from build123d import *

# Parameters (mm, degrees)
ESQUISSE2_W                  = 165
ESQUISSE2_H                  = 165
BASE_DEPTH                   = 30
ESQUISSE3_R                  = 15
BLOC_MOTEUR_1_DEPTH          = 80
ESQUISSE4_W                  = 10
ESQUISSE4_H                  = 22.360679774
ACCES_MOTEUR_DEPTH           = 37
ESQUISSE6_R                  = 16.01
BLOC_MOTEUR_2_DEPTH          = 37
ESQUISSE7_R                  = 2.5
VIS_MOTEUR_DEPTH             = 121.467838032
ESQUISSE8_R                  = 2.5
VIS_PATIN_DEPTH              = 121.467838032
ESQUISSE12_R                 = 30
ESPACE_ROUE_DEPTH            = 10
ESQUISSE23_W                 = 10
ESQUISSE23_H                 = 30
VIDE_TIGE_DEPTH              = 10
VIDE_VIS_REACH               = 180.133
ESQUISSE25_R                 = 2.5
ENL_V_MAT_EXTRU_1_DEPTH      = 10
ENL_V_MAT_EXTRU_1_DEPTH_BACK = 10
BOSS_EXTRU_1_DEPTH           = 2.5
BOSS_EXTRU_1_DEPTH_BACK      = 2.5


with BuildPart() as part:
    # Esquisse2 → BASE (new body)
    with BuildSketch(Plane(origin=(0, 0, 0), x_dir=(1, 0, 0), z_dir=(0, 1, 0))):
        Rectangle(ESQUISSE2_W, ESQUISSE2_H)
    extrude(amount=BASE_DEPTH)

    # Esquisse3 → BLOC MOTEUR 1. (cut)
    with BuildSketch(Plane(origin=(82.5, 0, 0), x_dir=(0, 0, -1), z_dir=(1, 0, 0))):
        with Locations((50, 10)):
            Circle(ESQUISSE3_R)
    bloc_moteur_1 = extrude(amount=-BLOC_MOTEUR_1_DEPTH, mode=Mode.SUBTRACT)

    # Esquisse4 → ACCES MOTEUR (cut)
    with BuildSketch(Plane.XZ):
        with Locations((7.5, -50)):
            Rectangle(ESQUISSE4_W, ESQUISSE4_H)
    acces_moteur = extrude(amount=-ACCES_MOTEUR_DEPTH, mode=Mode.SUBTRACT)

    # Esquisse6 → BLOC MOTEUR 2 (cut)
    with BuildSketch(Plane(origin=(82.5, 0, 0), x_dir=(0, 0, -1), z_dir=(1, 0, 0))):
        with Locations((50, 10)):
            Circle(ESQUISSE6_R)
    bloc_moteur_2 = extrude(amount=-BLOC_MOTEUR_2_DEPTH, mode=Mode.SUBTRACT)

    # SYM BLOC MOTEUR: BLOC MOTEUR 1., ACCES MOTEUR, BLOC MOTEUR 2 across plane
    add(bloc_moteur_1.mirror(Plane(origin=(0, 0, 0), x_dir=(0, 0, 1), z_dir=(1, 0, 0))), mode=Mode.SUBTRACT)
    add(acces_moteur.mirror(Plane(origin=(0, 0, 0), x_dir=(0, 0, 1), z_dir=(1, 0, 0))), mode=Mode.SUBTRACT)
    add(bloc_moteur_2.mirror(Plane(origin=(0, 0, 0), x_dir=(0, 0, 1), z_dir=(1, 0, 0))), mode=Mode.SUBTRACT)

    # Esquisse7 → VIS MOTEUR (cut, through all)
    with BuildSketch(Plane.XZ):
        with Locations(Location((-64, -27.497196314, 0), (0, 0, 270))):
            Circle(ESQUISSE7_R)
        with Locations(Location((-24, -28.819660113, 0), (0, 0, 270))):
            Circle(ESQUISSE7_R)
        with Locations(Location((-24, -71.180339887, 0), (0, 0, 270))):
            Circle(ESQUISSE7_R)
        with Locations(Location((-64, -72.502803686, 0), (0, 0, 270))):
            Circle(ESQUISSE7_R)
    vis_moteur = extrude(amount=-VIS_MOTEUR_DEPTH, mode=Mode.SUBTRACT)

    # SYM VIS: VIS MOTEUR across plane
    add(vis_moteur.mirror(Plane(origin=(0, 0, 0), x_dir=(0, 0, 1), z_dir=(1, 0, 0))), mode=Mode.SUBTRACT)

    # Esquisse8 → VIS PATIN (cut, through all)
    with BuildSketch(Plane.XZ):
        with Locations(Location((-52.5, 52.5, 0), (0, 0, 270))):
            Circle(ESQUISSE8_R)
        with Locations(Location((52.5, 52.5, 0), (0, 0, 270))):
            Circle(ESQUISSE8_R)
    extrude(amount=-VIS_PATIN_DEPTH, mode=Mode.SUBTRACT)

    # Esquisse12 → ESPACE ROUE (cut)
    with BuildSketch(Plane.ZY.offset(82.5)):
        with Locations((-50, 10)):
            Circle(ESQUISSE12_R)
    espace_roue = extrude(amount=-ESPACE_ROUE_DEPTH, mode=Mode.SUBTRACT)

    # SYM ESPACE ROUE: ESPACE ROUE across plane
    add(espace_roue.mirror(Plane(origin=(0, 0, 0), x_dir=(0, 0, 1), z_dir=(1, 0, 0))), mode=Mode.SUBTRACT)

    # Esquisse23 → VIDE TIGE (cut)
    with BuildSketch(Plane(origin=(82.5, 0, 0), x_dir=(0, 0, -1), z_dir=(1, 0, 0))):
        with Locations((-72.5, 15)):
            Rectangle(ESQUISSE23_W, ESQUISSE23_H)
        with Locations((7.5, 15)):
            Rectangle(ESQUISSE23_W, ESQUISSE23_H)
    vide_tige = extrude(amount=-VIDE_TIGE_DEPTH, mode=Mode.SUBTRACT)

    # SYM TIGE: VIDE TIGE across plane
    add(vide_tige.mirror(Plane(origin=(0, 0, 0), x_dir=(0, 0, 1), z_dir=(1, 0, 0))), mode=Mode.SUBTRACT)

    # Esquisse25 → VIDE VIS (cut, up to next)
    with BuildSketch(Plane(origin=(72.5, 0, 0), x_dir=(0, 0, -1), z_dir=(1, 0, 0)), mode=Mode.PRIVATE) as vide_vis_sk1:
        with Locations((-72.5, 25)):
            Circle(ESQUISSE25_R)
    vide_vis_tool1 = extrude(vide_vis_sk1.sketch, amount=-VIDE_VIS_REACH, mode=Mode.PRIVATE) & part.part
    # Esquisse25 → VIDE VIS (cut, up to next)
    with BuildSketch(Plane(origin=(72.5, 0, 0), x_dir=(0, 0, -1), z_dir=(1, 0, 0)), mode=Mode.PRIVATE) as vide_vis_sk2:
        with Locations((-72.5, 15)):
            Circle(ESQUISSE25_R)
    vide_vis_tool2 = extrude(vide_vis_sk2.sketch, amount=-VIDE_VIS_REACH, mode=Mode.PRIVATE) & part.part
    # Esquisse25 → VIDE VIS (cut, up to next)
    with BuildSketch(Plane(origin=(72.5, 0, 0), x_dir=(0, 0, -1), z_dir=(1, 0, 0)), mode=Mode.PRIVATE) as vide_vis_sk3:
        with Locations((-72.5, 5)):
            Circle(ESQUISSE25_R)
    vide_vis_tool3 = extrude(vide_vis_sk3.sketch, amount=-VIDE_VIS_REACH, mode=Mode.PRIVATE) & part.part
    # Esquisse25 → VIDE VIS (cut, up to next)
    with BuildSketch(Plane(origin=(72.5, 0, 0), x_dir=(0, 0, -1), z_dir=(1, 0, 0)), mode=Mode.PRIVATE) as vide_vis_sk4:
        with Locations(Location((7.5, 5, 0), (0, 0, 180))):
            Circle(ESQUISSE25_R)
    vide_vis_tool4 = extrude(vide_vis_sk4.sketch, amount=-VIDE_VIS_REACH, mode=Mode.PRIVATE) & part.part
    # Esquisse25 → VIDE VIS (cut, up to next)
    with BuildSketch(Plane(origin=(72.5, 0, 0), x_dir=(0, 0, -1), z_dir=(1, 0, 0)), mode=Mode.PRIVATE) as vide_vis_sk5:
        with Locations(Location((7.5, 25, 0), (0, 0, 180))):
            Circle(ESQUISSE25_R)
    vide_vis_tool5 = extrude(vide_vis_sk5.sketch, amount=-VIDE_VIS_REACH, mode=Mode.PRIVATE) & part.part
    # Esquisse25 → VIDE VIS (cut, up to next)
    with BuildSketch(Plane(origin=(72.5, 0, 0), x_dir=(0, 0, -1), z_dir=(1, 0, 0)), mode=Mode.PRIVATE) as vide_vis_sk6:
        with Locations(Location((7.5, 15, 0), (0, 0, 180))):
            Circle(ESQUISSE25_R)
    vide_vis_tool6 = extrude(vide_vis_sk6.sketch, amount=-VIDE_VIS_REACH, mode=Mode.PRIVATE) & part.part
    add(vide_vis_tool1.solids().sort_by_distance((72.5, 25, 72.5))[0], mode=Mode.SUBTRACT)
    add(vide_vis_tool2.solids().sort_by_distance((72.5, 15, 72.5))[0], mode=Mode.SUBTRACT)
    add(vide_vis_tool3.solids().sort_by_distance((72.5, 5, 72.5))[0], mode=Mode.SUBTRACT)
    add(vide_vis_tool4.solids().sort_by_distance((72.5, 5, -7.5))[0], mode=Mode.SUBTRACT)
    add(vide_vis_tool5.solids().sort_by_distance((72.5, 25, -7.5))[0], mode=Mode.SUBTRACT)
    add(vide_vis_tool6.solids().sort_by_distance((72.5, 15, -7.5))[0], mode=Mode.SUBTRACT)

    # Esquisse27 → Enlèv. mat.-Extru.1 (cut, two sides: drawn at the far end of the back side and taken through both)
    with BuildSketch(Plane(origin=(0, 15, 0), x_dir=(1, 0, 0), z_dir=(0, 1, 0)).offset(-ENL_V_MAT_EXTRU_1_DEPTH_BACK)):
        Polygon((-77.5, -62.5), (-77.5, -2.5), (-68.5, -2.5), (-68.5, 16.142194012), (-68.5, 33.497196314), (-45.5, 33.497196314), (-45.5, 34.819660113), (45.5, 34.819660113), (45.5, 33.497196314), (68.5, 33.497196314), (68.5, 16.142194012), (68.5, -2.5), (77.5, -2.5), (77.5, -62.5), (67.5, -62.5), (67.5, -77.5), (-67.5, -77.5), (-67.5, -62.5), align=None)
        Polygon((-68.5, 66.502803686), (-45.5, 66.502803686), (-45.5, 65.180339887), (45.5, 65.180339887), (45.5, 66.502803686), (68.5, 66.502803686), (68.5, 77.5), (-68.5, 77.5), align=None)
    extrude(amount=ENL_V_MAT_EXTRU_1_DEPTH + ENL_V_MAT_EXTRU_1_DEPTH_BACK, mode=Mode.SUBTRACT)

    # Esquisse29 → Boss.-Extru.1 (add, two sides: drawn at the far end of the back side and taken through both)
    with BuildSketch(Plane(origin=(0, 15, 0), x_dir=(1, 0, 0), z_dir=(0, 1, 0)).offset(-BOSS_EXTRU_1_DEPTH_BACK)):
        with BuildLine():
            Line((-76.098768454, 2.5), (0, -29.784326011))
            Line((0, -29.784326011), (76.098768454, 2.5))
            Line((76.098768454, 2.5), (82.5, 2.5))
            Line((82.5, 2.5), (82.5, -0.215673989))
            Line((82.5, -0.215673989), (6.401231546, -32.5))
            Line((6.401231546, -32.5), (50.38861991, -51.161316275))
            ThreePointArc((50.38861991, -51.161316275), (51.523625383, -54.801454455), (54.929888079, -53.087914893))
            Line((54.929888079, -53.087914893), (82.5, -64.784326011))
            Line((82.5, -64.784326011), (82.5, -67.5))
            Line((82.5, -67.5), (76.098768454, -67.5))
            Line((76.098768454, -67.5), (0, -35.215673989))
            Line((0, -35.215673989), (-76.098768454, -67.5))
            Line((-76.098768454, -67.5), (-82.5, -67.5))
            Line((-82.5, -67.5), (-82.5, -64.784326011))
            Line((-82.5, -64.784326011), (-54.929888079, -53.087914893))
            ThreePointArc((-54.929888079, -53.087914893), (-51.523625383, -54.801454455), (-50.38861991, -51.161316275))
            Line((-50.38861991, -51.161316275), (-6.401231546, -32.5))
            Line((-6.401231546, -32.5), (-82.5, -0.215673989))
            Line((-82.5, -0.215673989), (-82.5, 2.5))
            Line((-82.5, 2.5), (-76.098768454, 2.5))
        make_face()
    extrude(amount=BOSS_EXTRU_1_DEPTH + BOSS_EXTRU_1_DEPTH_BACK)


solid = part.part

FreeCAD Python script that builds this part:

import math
import FreeCAD as App
import Part
import Sketcher

V = App.Vector
Q = App.Units.Quantity

doc = App.newDocument("Part")
params = doc.addObject("Spreadsheet::Sheet", "Params")
for row, (alias, value) in enumerate([
    ("sketch1_width", "165 mm"),
    ("pad1_length", "30 mm"),
    ("sketch2_diameter", "30 mm"),
    ("pocket1_length", "80 mm"),
    ("sketch3_width", "10 mm"),
    ("pocket2_length", "37 mm"),
    ("sketch4_diameter", "32.02 mm"),
    ("pocket3_length", "37 mm"),
    ("sketch5_diameter", "5 mm"),
    ("sketch6_diameter", "5 mm"),
    ("sketch7_diameter", "60 mm"),
    ("pocket6_length", "10 mm"),
    ("sketch8_width", "30 mm"),
    ("sketch8_height", "10 mm"),
    ("pocket7_length", "10 mm"),
    ("sketch9_diameter", "5 mm"),
    ("sketch10_diameter", "5 mm"),
    ("sketch11_diameter", "5 mm"),
    ("sketch12_diameter", "5 mm"),
    ("sketch13_diameter", "5 mm"),
    ("sketch14_diameter", "5 mm"),
    ("sketch15_width", "10 mm"),
    ("sketch15_width2", "135 mm"),
    ("sketch15_width3", "9 mm"),
    ("sketch15_width4", "23 mm"),
    ("sketch15_height", "60 mm"),
    ("pocket14_length", "10 mm"),
    ("pocket14_length2", "10 mm"),
    ("sketch16_radius", "2.5 mm"),
    ("pad2_length", "2.5 mm"),
    ("pad2_length2", "2.5 mm"),
], start=1):
    params.set(f"A{row}", alias)
    params.set(f"B{row}", "=" + value)
    params.setAlias(f"B{row}", alias)

body = doc.addObject("PartDesign::Body", "Body")

# Sketch on XZ plane
sketch1 = doc.addObject("Sketcher::SketchObject", "Sketch")
body.addObject(sketch1)
sketch1.AttachmentSupport = (doc.XZ_Plane, [""])
sketch1.MapMode = "FlatFace"
sketch1.addGeometry([
    Part.LineSegment(V(-82, -82, 0), V(-82, 82, 0)),
    Part.LineSegment(V(-82, 82, 0), V(82, 82, 0)),
    Part.LineSegment(V(82, 82, 0), V(82, -82, 0)),
    Part.LineSegment(V(82, -82, 0), V(-82, -82, 0)),
], False)
sketch1.addConstraint([
    Sketcher.Constraint("Coincident", 0, 2, 1, 1),
    Sketcher.Constraint("Coincident", 1, 2, 2, 1),
    Sketcher.Constraint("Coincident", 2, 2, 3, 1),
    Sketcher.Constraint("Coincident", 3, 2, 0, 1),
    Sketcher.Constraint("Vertical", 0),
    Sketcher.Constraint("Horizontal", 1),
    Sketcher.Constraint("Vertical", 2),
    Sketcher.Constraint("Horizontal", 3),
    Sketcher.Constraint("Symmetric", 0, 2, 2, 2, -1, 1),
    Sketcher.Constraint("Equal", 3, 0),
    Sketcher.Constraint("DistanceX", 1, 1, 1, 2, Q("165 mm")),
])
sketch1.setExpression("Constraints[10]", "Params.sketch1_width")
pad1 = doc.addObject("PartDesign::Pad", "Pad")
body.addObject(pad1)
pad1.Profile = sketch1
pad1.setExpression("Length", "Params.pad1_length")
pad1.Reversed = True

# Sketch on YZ plane
sketch2 = doc.addObject("Sketcher::SketchObject", "Sketch001")
body.addObject(sketch2)
sketch2.AttachmentSupport = (doc.YZ_Plane, [""])
sketch2.MapMode = "FlatFace"
sketch2.AttachmentOffset = App.Placement(V(0, 0, 82.5), App.Rotation())
sketch2.addGeometry(Part.Circle(V(10, -50, 0), V(0, 0, 1), 15), False)
sketch2.addConstraint([
    Sketcher.Constraint("Diameter", 0, Q("30 mm")),
    Sketcher.Constraint("DistanceX", -1, 1, 0, 3, Q("10 mm")),
    Sketcher.Constraint("DistanceY", 0, 3, -1, 1, Q("50 mm")),
])
sketch2.setExpression("Constraints[0]", "Params.sketch2_diameter")
pocket1 = doc.addObject("PartDesign::Pocket", "Pocket")
body.addObject(pocket1)
pocket1.Profile = sketch2
pocket1.setExpression("Length", "Params.pocket1_length")

# Sketch on XZ plane
sketch3 = doc.addObject("Sketcher::SketchObject", "Sketch002")
body.addObject(sketch3)
sketch3.AttachmentSupport = (doc.XZ_Plane, [""])
sketch3.MapMode = "FlatFace"
sketch3.addGeometry([
    Part.LineSegment(V(2, -39, 0), V(2, -61, 0)),
    Part.LineSegment(V(2, -61, 0), V(12, -61, 0)),
    Part.LineSegment(V(12, -61, 0), V(12, -39, 0)),
    Part.LineSegment(V(12, -39, 0), V(2, -39, 0)),
], False)
sketch3.addConstraint([
    Sketcher.Constraint("Coincident", 0, 2, 1, 1),
    Sketcher.Constraint("Coincident", 1, 2, 2, 1),
    Sketcher.Constraint("Coincident", 2, 2, 3, 1),
    Sketcher.Constraint("Coincident", 3, 2, 0, 1),
    Sketcher.Constraint("Vertical", 0),
    Sketcher.Constraint("Horizontal", 1),
    Sketcher.Constraint("Vertical", 2),
    Sketcher.Constraint("Horizontal", 3),
    Sketcher.Constraint("DistanceX", 1, 1, 1, 2, Q("10 mm")),
    Sketcher.Constraint("DistanceX", -1, 1, 0, 2, Q("2.5 mm")),
    Sketcher.Constraint("DistanceY", 0, 2, 0, 1, Q("22.36068 mm")),
    Sketcher.Constraint("DistanceY", 0, 2, -1, 1, Q("61.18034 mm")),
])
sketch3.setExpression("Constraints[8]", "Params.sketch3_width")
pocket2 = doc.addObject("PartDesign::Pocket", "Pocket001")
body.addObject(pocket2)
pocket2.Profile = sketch3
pocket2.setExpression("Length", "Params.pocket2_length")

# Sketch on YZ plane
sketch4 = doc.addObject("Sketcher::SketchObject", "Sketch003")
body.addObject(sketch4)
sketch4.AttachmentSupport = (doc.YZ_Plane, [""])
sketch4.MapMode = "FlatFace"
sketch4.AttachmentOffset = App.Placement(V(0, 0, 82.5), App.Rotation())
sketch4.addGeometry(Part.Circle(V(10, -50, 0), V(0, 0, 1), 16), False)
sketch4.addConstraint([
    Sketcher.Constraint("Diameter", 0, Q("32.02 mm")),
    Sketcher.Constraint("DistanceX", -1, 1, 0, 3, Q("10 mm")),
    Sketcher.Constraint("DistanceY", 0, 3, -1, 1, Q("50 mm")),
])
sketch4.setExpression("Constraints[0]", "Params.sketch4_diameter")
pocket3 = doc.addObject("PartDesign::Pocket", "Pocket002")
body.addObject(pocket3)
pocket3.Profile = sketch4
pocket3.setExpression("Length", "Params.pocket3_length")
doc.recompute()

mirrored = doc.addObject("PartDesign::Mirrored", "Mirrored")
body.addObject(mirrored)
mirrored.Originals = [pocket1, pocket2, pocket3]
mirrored.MirrorPlane = (doc.YZ_Plane, [""])
body.Tip = mirrored

# Sketch on XZ plane
sketch5 = doc.addObject("Sketcher::SketchObject", "Sketch004")
body.addObject(sketch5)
sketch5.AttachmentSupport = (doc.XZ_Plane, [""])
sketch5.MapMode = "FlatFace"
sketch5.addGeometry([
    Part.Circle(V(-64, -27.5, 0), V(0, 0, 1), 2.5),
    Part.Circle(V(-24, -28.8, 0), V(0, 0, 1), 2.5),
    Part.Circle(V(-24, -71.2, 0), V(0, 0, 1), 2.5),
    Part.Circle(V(-64, -72.5, 0), V(0, 0, 1), 2.5),
], False)
sketch5.addConstraint([
    Sketcher.Constraint("Equal", 0, 1),
    Sketcher.Constraint("Equal", 1, 2),
    Sketcher.Constraint("Equal", 2, 3),
    Sketcher.Constraint("Vertical", 1, 3, 2, 3),
    Sketcher.Constraint("Vertical", 0, 3, 3, 3),
    Sketcher.Constraint("Diameter", 0, Q("5 mm")),
    Sketcher.Constraint("DistanceX", 0, 3, -1, 1, Q("64 mm")),
    Sketcher.Constraint("DistanceX", 1, 3, -1, 1, Q("24 mm")),
    Sketcher.Constraint("DistanceY", 1, 3, -1, 1, Q("28.81966 mm")),
    Sketcher.Constraint("DistanceY", 2, 3, -1, 1, Q("71.18034 mm")),
    Sketcher.Constraint("DistanceY", 0, 3, -1, 1, Q("27.497196 mm")),
    Sketcher.Constraint("DistanceY", 3, 3, -1, 1, Q("72.502804 mm")),
])
sketch5.setExpression("Constraints[5]", "Params.sketch5_diameter")
pocket4 = doc.addObject("PartDesign::Pocket", "Pocket003")
body.addObject(pocket4)
pocket4.Profile = sketch5
pocket4.Type = "ThroughAll"
doc.recompute()

mirrored2 = doc.addObject("PartDesign::Mirrored", "Mirrored001")
body.addObject(mirrored2)
mirrored2.Originals = [pocket4]
mirrored2.MirrorPlane = (doc.YZ_Plane, [""])
body.Tip = mirrored2

# Sketch on XZ plane
sketch6 = doc.addObject("Sketcher::SketchObject", "Sketch005")
body.addObject(sketch6)
sketch6.AttachmentSupport = (doc.XZ_Plane, [""])
sketch6.MapMode = "FlatFace"
sketch6.addGeometry([
    Part.Circle(V(-52.5, 52.5, 0), V(0, 0, 1), 2.5),
    Part.Circle(V(52.5, 52.5, 0), V(0, 0, 1), 2.5),
], False)
sketch6.addConstraint([
    Sketcher.Constraint("Equal", 0, 1),
    Sketcher.Constraint("Symmetric", 0, 3, 1, 3, -2),
    Sketcher.Constraint("Diameter", 0, Q("5 mm")),
    Sketcher.Constraint("DistanceX", 0, 3, 1, 3, Q("105 mm")),
    Sketcher.Constraint("DistanceY", -1, 1, 0, 3, Q("52.5 mm")),
])
sketch6.setExpression("Constraints[2]", "Params.sketch6_diameter")
pocket5 = doc.addObject("PartDesign::Pocket", "Pocket004")
body.addObject(pocket5)
pocket5.Profile = sketch6
pocket5.Type = "ThroughAll"

# Sketch on YZ plane
sketch7 = doc.addObject("Sketcher::SketchObject", "Sketch006")
body.addObject(sketch7)
sketch7.AttachmentSupport = (doc.YZ_Plane, [""])
sketch7.MapMode = "FlatFace"
sketch7.AttachmentOffset = App.Placement(V(0, 0, -82.5), App.Rotation())
sketch7.addGeometry(Part.Circle(V(10, -50, 0), V(0, 0, 1), 30), False)
sketch7.addConstraint([
    Sketcher.Constraint("Diameter", 0, Q("60 mm")),
    Sketcher.Constraint("DistanceX", -1, 1, 0, 3, Q("10 mm")),
    Sketcher.Constraint("DistanceY", 0, 3, -1, 1, Q("50 mm")),
])
sketch7.setExpression("Constraints[0]", "Params.sketch7_diameter")
pocket6 = doc.addObject("PartDesign::Pocket", "Pocket005")
body.addObject(pocket6)
pocket6.Profile = sketch7
pocket6.setExpression("Length", "Params.pocket6_length")
pocket6.Reversed = True
doc.recompute()

mirrored3 = doc.addObject("PartDesign::Mirrored", "Mirrored002")
body.addObject(mirrored3)
mirrored3.Originals = [pocket6]
mirrored3.MirrorPlane = (doc.YZ_Plane, [""])
body.Tip = mirrored3

# Sketch on YZ plane
sketch8 = doc.addObject("Sketcher::SketchObject", "Sketch007")
body.addObject(sketch8)
sketch8.AttachmentSupport = (doc.YZ_Plane, [""])
sketch8.MapMode = "FlatFace"
sketch8.AttachmentOffset = App.Placement(V(0, 0, 82.5), App.Rotation())
sketch8.addGeometry([
    Part.LineSegment(V(30, 78, 0), V(0, 78, 0)),  # 0
    Part.LineSegment(V(0, 78, 0), V(0, 68, 0)),  # 1
    Part.LineSegment(V(0, 68, 0), V(30, 68, 0)),  # 2
    Part.LineSegment(V(30, 68, 0), V(30, 78, 0)),  # 3
    Part.LineSegment(V(30, -2, 0), V(0, -2, 0)),  # 4
    Part.LineSegment(V(0, -2, 0), V(0, -12, 0)),  # 5
    Part.LineSegment(V(0, -12, 0), V(30, -12, 0)),  # 6
    Part.LineSegment(V(30, -12, 0), V(30, -2, 0)),  # 7
], False)
sketch8.addConstraint([
    Sketcher.Constraint("Coincident", 0, 2, 1, 1),
    Sketcher.Constraint("Coincident", 1, 2, 2, 1),
    Sketcher.Constraint("Coincident", 2, 2, 3, 1),
    Sketcher.Constraint("Coincident", 3, 2, 0, 1),
    Sketcher.Constraint("Coincident", 4, 2, 5, 1),
    Sketcher.Constraint("Coincident", 5, 2, 6, 1),
    Sketcher.Constraint("Coincident", 6, 2, 7, 1),
    Sketcher.Constraint("Coincident", 7, 2, 4, 1),
    Sketcher.Constraint("Horizontal", 0),
    Sketcher.Constraint("Vertical", 1),
    Sketcher.Constraint("Horizontal", 2),
    Sketcher.Constraint("Vertical", 3),
    Sketcher.Constraint("Horizontal", 4),
    Sketcher.Constraint("Vertical", 5),
    Sketcher.Constraint("Horizontal", 6),
    Sketcher.Constraint("Vertical", 7),
    Sketcher.Constraint("PointOnObject", 0, 2, -2),
    Sketcher.Constraint("PointOnObject", 4, 2, -2),
    Sketcher.Constraint("Vertical", 3, 2, 6, 2),
    Sketcher.Constraint("Equal", 3, 5),
    Sketcher.Constraint("DistanceX", 0, 2, 0, 1, Q("30 mm")),
    Sketcher.Constraint("DistanceY", 1, 2, 1, 1, Q("10 mm")),
    Sketcher.Constraint("DistanceY", 4, 2, 1, 2, Q("70 mm")),
    Sketcher.Constraint("DistanceY", -1, 1, 0, 2, Q("77.5 mm")),
])
sketch8.setExpression("Constraints[20]", "Params.sketch8_width")
sketch8.setExpression("Constraints[21]", "Params.sketch8_height")
pocket7 = doc.addObject("PartDesign::Pocket", "Pocket006")
body.addObject(pocket7)
pocket7.Profile = sketch8
pocket7.setExpression("Length", "Params.pocket7_length")
doc.recompute()

mirrored4 = doc.addObject("PartDesign::Mirrored", "Mirrored003")
body.addObject(mirrored4)
mirrored4.Originals = [pocket7]
mirrored4.MirrorPlane = (doc.YZ_Plane, [""])
body.Tip = mirrored4

# Sketch on YZ plane
sketch9 = doc.addObject("Sketcher::SketchObject", "Sketch008")
body.addObject(sketch9)
sketch9.AttachmentSupport = (doc.YZ_Plane, [""])
sketch9.MapMode = "FlatFace"
sketch9.AttachmentOffset = App.Placement(V(0, 0, 72.5), App.Rotation())
sketch9.addGeometry(Part.Circle(V(25, 72.5, 0), V(0, 0, 1), 2.5), False)
sketch9.addConstraint([
    Sketcher.Constraint("Diameter", 0, Q("5 mm")),
    Sketcher.Constraint("DistanceX", -1, 1, 0, 3, Q("25 mm")),
    Sketcher.Constraint("DistanceY", -1, 1, 0, 3, Q("72.5 mm")),
])
sketch9.setExpression("Constraints[0]", "Params.sketch9_diameter")
pocket8 = doc.addObject("PartDesign::Pocket", "Pocket007")
body.addObject(pocket8)
pocket8.Profile = sketch9
pocket8.Type = "UpToFirst"

# Sketch on YZ plane
sketch10 = doc.addObject("Sketcher::SketchObject", "Sketch009")
body.addObject(sketch10)
sketch10.AttachmentSupport = (doc.YZ_Plane, [""])
sketch10.MapMode = "FlatFace"
sketch10.AttachmentOffset = App.Placement(V(0, 0, 72.5), App.Rotation())
sketch10.addGeometry(Part.Circle(V(15, 72.5, 0), V(0, 0, 1), 2.5), False)
sketch10.addConstraint([
    Sketcher.Constraint("Diameter", 0, Q("5 mm")),
    Sketcher.Constraint("DistanceX", -1, 1, 0, 3, Q("15 mm")),
    Sketcher.Constraint("DistanceY", -1, 1, 0, 3, Q("72.5 mm")),
])
sketch10.setExpression("Constraints[0]", "Params.sketch10_diameter")
pocket9 = doc.addObject("PartDesign::Pocket", "Pocket008")
body.addObject(pocket9)
pocket9.Profile = sketch10
pocket9.Type = "UpToFirst"

# Sketch on YZ plane
sketch11 = doc.addObject("Sketcher::SketchObject", "Sketch010")
body.addObject(sketch11)
sketch11.AttachmentSupport = (doc.YZ_Plane, [""])
sketch11.MapMode = "FlatFace"
sketch11.AttachmentOffset = App.Placement(V(0, 0, 72.5), App.Rotation())
sketch11.addGeometry(Part.Circle(V(5, 72.5, 0), V(0, 0, 1), 2.5), False)
sketch11.addConstraint([
    Sketcher.Constraint("Diameter", 0, Q("5 mm")),
    Sketcher.Constraint("DistanceX", -1, 1, 0, 3, Q("5 mm")),
    Sketcher.Constraint("DistanceY", -1, 1, 0, 3, Q("72.5 mm")),
])
sketch11.setExpression("Constraints[0]", "Params.sketch11_diameter")
pocket10 = doc.addObject("PartDesign::Pocket", "Pocket009")
body.addObject(pocket10)
pocket10.Profile = sketch11
pocket10.Type = "UpToFirst"

# Sketch on YZ plane
sketch12 = doc.addObject("Sketcher::SketchObject", "Sketch011")
body.addObject(sketch12)
sketch12.AttachmentSupport = (doc.YZ_Plane, [""])
sketch12.MapMode = "FlatFace"
sketch12.AttachmentOffset = App.Placement(V(0, 0, 72.5), App.Rotation())
sketch12.addGeometry(Part.Circle(V(5, -7.5, 0), V(0, 0, 1), 2.5), False)
sketch12.addConstraint([
    Sketcher.Constraint("Diameter", 0, Q("5 mm")),
    Sketcher.Constraint("DistanceX", -1, 1, 0, 3, Q("5 mm")),
    Sketcher.Constraint("DistanceY", 0, 3, -1, 1, Q("7.5 mm")),
])
sketch12.setExpression("Constraints[0]", "Params.sketch12_diameter")
pocket11 = doc.addObject("PartDesign::Pocket", "Pocket010")
body.addObject(pocket11)
pocket11.Profile = sketch12
pocket11.Type = "UpToFirst"

# Sketch on YZ plane
sketch13 = doc.addObject("Sketcher::SketchObject", "Sketch012")
body.addObject(sketch13)
sketch13.AttachmentSupport = (doc.YZ_Plane, [""])
sketch13.MapMode = "FlatFace"
sketch13.AttachmentOffset = App.Placement(V(0, 0, 72.5), App.Rotation())
sketch13.addGeometry(Part.Circle(V(25, -7.5, 0), V(0, 0, 1), 2.5), False)
sketch13.addConstraint([
    Sketcher.Constraint("Diameter", 0, Q("5 mm")),
    Sketcher.Constraint("DistanceX", -1, 1, 0, 3, Q("25 mm")),
    Sketcher.Constraint("DistanceY", 0, 3, -1, 1, Q("7.5 mm")),
])
sketch13.setExpression("Constraints[0]", "Params.sketch13_diameter")
pocket12 = doc.addObject("PartDesign::Pocket", "Pocket011")
body.addObject(pocket12)
pocket12.Profile = sketch13
pocket12.Type = "UpToFirst"

# Sketch on YZ plane
sketch14 = doc.addObject("Sketcher::SketchObject", "Sketch013")
body.addObject(sketch14)
sketch14.AttachmentSupport = (doc.YZ_Plane, [""])
sketch14.MapMode = "FlatFace"
sketch14.AttachmentOffset = App.Placement(V(0, 0, 72.5), App.Rotation())
sketch14.addGeometry(Part.Circle(V(15, -7.5, 0), V(0, 0, 1), 2.5), False)
sketch14.addConstraint([
    Sketcher.Constraint("Diameter", 0, Q("5 mm")),
    Sketcher.Constraint("DistanceX", -1, 1, 0, 3, Q("15 mm")),
    Sketcher.Constraint("DistanceY", 0, 3, -1, 1, Q("7.5 mm")),
])
sketch14.setExpression("Constraints[0]", "Params.sketch14_diameter")
pocket13 = doc.addObject("PartDesign::Pocket", "Pocket012")
body.addObject(pocket13)
pocket13.Profile = sketch14
pocket13.Type = "UpToFirst"

# Sketch on XZ plane
sketch15 = doc.addObject("Sketcher::SketchObject", "Sketch014")
body.addObject(sketch15)
sketch15.AttachmentSupport = (doc.XZ_Plane, [""])
sketch15.MapMode = "FlatFace"
sketch15.AttachmentOffset = App.Placement(V(0, 0, -15), App.Rotation())
sketch15.addGeometry([
    Part.LineSegment(V(-77.5, 2.5, 0), V(-77.5, 62.5, 0)),  # 0
    Part.LineSegment(V(-77.5, 62.5, 0), V(-67.5, 62.5, 0)),  # 1
    Part.LineSegment(V(-67.5, 62.5, 0), V(-67.5, 77.5, 0)),  # 2
    Part.LineSegment(V(-67.5, 77.5, 0), V(67.5, 77.5, 0)),  # 3
    Part.LineSegment(V(67.5, 77.5, 0), V(67.5, 62.5, 0)),  # 4
    Part.LineSegment(V(67.5, 62.5, 0), V(77.5, 62.5, 0)),  # 5
    Part.LineSegment(V(77.5, 62.5, 0), V(77.5, 2.5, 0)),  # 6
    Part.LineSegment(V(77.5, 2.5, 0), V(68.5, 2.5, 0)),  # 7
    Part.LineSegment(V(68.5, 2.5, 0), V(68.5, -33.5, 0)),  # 8
    Part.LineSegment(V(68.5, -33.5, 0), V(45.5, -33.5, 0)),  # 9
    Part.LineSegment(V(45.5, -33.5, 0), V(45.5, -34.8, 0)),  # 10
    Part.LineSegment(V(45.5, -34.8, 0), V(-45.5, -34.8, 0)),  # 11
    Part.LineSegment(V(-45.5, -34.8, 0), V(-45.5, -33.5, 0)),  # 12
    Part.LineSegment(V(-45.5, -33.5, 0), V(-68.5, -33.5, 0)),  # 13
    Part.LineSegment(V(-68.5, -33.5, 0), V(-68.5, 2.5, 0)),  # 14
    Part.LineSegment(V(-68.5, 2.5, 0), V(-77.5, 2.5, 0)),  # 15
    Part.LineSegment(V(-68.5, -66.5, 0), V(-45.5, -66.5, 0)),  # 16
    Part.LineSegment(V(-45.5, -66.5, 0), V(-45.5, -65.2, 0)),  # 17
    Part.LineSegment(V(-45.5, -65.2, 0), V(45.5, -65.2, 0)),  # 18
    Part.LineSegment(V(45.5, -65.2, 0), V(45.5, -66.5, 0)),  # 19
    Part.LineSegment(V(45.5, -66.5, 0), V(68.5, -66.5, 0)),  # 20
    Part.LineSegment(V(68.5, -66.5, 0), V(68.5, -77.5, 0)),  # 21
    Part.LineSegment(V(68.5, -77.5, 0), V(-68.5, -77.5, 0)),  # 22
    Part.LineSegment(V(-68.5, -77.5, 0), V(-68.5, -66.5, 0)),  # 23
], False)
sketch15.addConstraint([
    Sketcher.Constraint("Coincident", 0, 2, 1, 1),
    Sketcher.Constraint("Coincident", 1, 2, 2, 1),
    Sketcher.Constraint("Coincident", 2, 2, 3, 1),
    Sketcher.Constraint("Coincident", 3, 2, 4, 1),
    Sketcher.Constraint("Coincident", 4, 2, 5, 1),
    Sketcher.Constraint("Coincident", 5, 2, 6, 1),
    Sketcher.Constraint("Coincident", 6, 2, 7, 1),
    Sketcher.Constraint("Coincident", 7, 2, 8, 1),
    Sketcher.Constraint("Coincident", 8, 2, 9, 1),
    Sketcher.Constraint("Coincident", 9, 2, 10, 1),
    Sketcher.Constraint("Coincident", 10, 2, 11, 1),
    Sketcher.Constraint("Coincident", 11, 2, 12, 1),
    Sketcher.Constraint("Coincident", 12, 2, 13, 1),
    Sketcher.Constraint("Coincident", 13, 2, 14, 1),
    Sketcher.Constraint("Coincident", 14, 2, 15, 1),
    Sketcher.Constraint("Coincident", 15, 2, 0, 1),
    Sketcher.Constraint("Coincident", 16, 2, 17, 1),
    Sketcher.Constraint("Coincident", 17, 2, 18, 1),
    Sketcher.Constraint("Coincident", 18, 2, 19, 1),
    Sketcher.Constraint("Coincident", 19, 2, 20, 1),
    Sketcher.Constraint("Coincident", 20, 2, 21, 1),
    Sketcher.Constraint("Coincident", 21, 2, 22, 1),
    Sketcher.Constraint("Coincident", 22, 2, 23, 1),
    Sketcher.Constraint("Coincident", 23, 2, 16, 1),
    Sketcher.Constraint("Vertical", 0),
    Sketcher.Constraint("Horizontal", 1),
    Sketcher.Constraint("Vertical", 2),
    Sketcher.Constraint("Horizontal", 3),
    Sketcher.Constraint("Vertical", 4),
    Sketcher.Constraint("Horizontal", 5),
    Sketcher.Constraint("Vertical", 6),
    Sketcher.Constraint("Horizontal", 7),
    Sketcher.Constraint("Vertical", 8),
    Sketcher.Constraint("Horizontal", 9),
    Sketcher.Constraint("Vertical", 10),
    Sketcher.Constraint("Horizontal", 11),
    Sketcher.Constraint("Vertical", 12),
    Sketcher.Constraint("Horizontal", 13),
    Sketcher.Constraint("Vertical", 14),
    Sketcher.Constraint("Horizontal", 15),
    Sketcher.Constraint("Horizontal", 16),
    Sketcher.Constraint("Vertical", 17),
    Sketcher.Constraint("Horizontal", 18),
    Sketcher.Constraint("Vertical", 19),
    Sketcher.Constraint("Horizontal", 20),
    Sketcher.Constraint("Vertical", 21),
    Sketcher.Constraint("Horizontal", 22),
    Sketcher.Constraint("Vertical", 23),
    Sketcher.Constraint("Symmetric", 1, 2, 4, 2, -2),
    Sketcher.Constraint("Symmetric", 9, 2, 12, 2, -2),
    Sketcher.Constraint("Symmetric", 7, 2, 14, 2, -2),
    Sketcher.Constraint("Symmetric", 16, 2, 19, 2, -2),
    Sketcher.Constraint("Vertical", 12, 2, 16, 2),
    Sketcher.Constraint("Vertical", 8, 2, 20, 2),
    Sketcher.Constraint("Vertical", 14, 2, 22, 2),
    Sketcher.Constraint("Equal", 1, 5),
    Sketcher.Constraint("Equal", 12, 17),
    Sketcher.Constraint("DistanceX", 1, 1, 1, 2, Q("10 mm")),
    Sketcher.Constraint("DistanceX", 3, 1, 3, 2, Q("135 mm")),
    Sketcher.Constraint("DistanceX", 7, 2, 7, 1, Q("9 mm")),
    Sketcher.Constraint("DistanceX", 9, 2, 9, 1, Q("23 mm")),
    Sketcher.Constraint("DistanceY", 0, 1, 0, 2, Q("60 mm")),
    Sketcher.Constraint("DistanceY", 2, 1, 2, 2, Q("15 mm")),
    Sketcher.Constraint("DistanceY", -1, 1, 0, 2, Q("62.5 mm")),
    Sketcher.Constraint("DistanceY", 21, 2, -1, 1, Q("77.5 mm")),
    Sketcher.Constraint("DistanceY", 8, 2, 8, 1, Q("35.997196 mm")),
    Sketcher.Constraint("DistanceY", 10, 2, 10, 1, Q("1.322464 mm")),
    Sketcher.Constraint("DistanceY", 21, 2, 21, 1, Q("10.997196 mm")),
])
sketch15.setExpression("Constraints[57]", "Params.sketch15_width")
sketch15.setExpression("Constraints[58]", "Params.sketch15_width2")
sketch15.setExpression("Constraints[59]", "Params.sketch15_width3")
sketch15.setExpression("Constraints[60]", "Params.sketch15_width4")
sketch15.setExpression("Constraints[61]", "Params.sketch15_height")
pocket14 = doc.addObject("PartDesign::Pocket", "Pocket013")
body.addObject(pocket14)
pocket14.Profile = sketch15
pocket14.Type = "TwoLengths"
pocket14.setExpression("Length", "Params.pocket14_length")
pocket14.setExpression("Length2", "Params.pocket14_length2")

# Sketch on XZ plane
sketch16 = doc.addObject("Sketcher::SketchObject", "Sketch015")
body.addObject(sketch16)
sketch16.AttachmentSupport = (doc.XZ_Plane, [""])
sketch16.MapMode = "FlatFace"
sketch16.AttachmentOffset = App.Placement(V(0, 0, -15), App.Rotation())
sketch16.addGeometry([
    Part.LineSegment(V(0, 29.8, 0), V(-76.1, -2.5, 0)),  # 0
    Part.LineSegment(V(-76.1, -2.5, 0), V(-82.5, -2.5, 0)),  # 1
    Part.LineSegment(V(-82.5, -2.5, 0), V(-82.5, 0.2, 0)),  # 2
    Part.LineSegment(V(-82.5, 0.2, 0), V(-6.4, 32.5, 0)),  # 3
    Part.LineSegment(V(-6.4, 32.5, 0), V(-50.4, 51.2, 0)),  # 4
    Part.ArcOfCircle(Part.Circle(V(-52.5, 52.5, 0), V(0, 0, 1), 2.5), math.radians(-32), math.radians(166)),  # 5
    Part.LineSegment(V(-54.9, 53.1, 0), V(-82.5, 64.8, 0)),  # 6
    Part.LineSegment(V(-82.5, 64.8, 0), V(-82.5, 67.5, 0)),  # 7
    Part.LineSegment(V(-82.5, 67.5, 0), V(-76.1, 67.5, 0)),  # 8
    Part.LineSegment(V(-76.1, 67.5, 0), V(0, 35.2, 0)),  # 9
    Part.LineSegment(V(0, 35.2, 0), V(76.1, 67.5, 0)),  # 10
    Part.LineSegment(V(76.1, 67.5, 0), V(82.5, 67.5, 0)),  # 11
    Part.LineSegment(V(82.5, 67.5, 0), V(82.5, 64.8, 0)),  # 12
    Part.LineSegment(V(82.5, 64.8, 0), V(54.9, 53.1, 0)),  # 13
    Part.ArcOfCircle(Part.Circle(V(52.5, 52.5, 0), V(0, 0, 1), 2.5), math.radians(14), math.radians(212)),  # 14
    Part.LineSegment(V(50.4, 51.2, 0), V(6.4, 32.5, 0)),  # 15
    Part.LineSegment(V(6.4, 32.5, 0), V(82.5, 0.2, 0)),  # 16
    Part.LineSegment(V(82.5, 0.2, 0), V(82.5, -2.5, 0)),  # 17
    Part.LineSegment(V(82.5, -2.5, 0), V(76.1, -2.5, 0)),  # 18
    Part.LineSegment(V(76.1, -2.5, 0), V(0, 29.8, 0)),  # 19
], False)
sketch16.addConstraint([
    Sketcher.Constraint("Coincident", 0, 2, 1, 1),
    Sketcher.Constraint("Coincident", 1, 2, 2, 1),
    Sketcher.Constraint("Coincident", 2, 2, 3, 1),
    Sketcher.Constraint("Coincident", 3, 2, 4, 1),
    Sketcher.Constraint("Coincident", 4, 2, 5, 1),
    Sketcher.Constraint("Coincident", 5, 2, 6, 1),
    Sketcher.Constraint("Coincident", 6, 2, 7, 1),
    Sketcher.Constraint("Coincident", 7, 2, 8, 1),
    Sketcher.Constraint("Coincident", 8, 2, 9, 1),
    Sketcher.Constraint("Coincident", 9, 2, 10, 1),
    Sketcher.Constraint("Coincident", 10, 2, 11, 1),
    Sketcher.Constraint("Coincident", 11, 2, 12, 1),
    Sketcher.Constraint("Coincident", 12, 2, 13, 1),
    Sketcher.Constraint("Coincident", 13, 2, 14, 1),
    Sketcher.Constraint("Coincident", 14, 2, 15, 1),
    Sketcher.Constraint("Coincident", 15, 2, 16, 1),
    Sketcher.Constraint("Coincident", 16, 2, 17, 1),
    Sketcher.Constraint("Coincident", 17, 2, 18, 1),
    Sketcher.Constraint("Coincident", 18, 2, 19, 1),
    Sketcher.Constraint("Coincident", 19, 2, 0, 1),
    Sketcher.Constraint("Horizontal", 1),
    Sketcher.Constraint("Vertical", 2),
    Sketcher.Constraint("Vertical", 7),
    Sketcher.Constraint("Horizontal", 8),
    Sketcher.Constraint("Horizontal", 11),
    Sketcher.Constraint("Vertical", 12),
    Sketcher.Constraint("Vertical", 17),
    Sketcher.Constraint("Horizontal", 18),
    Sketcher.Constraint("Equal", 5, 14),
    Sketcher.Constraint("Symmetric", 5, 3, 14, 3, -2),
    Sketcher.Constraint("Symmetric", 8, 2, 10, 2, -2),
    Sketcher.Constraint("Symmetric", 6, 2, 12, 2, -2),
    Sketcher.Constraint("Symmetric", 3, 2, 15, 2, -2),
    Sketcher.Constraint("Symmetric", 2, 2, 16, 2, -2),
    Sketcher.Constraint("Symmetric", 0, 2, 18, 2, -2),
    Sketcher.Constraint("PointOnObject", 9, 2, -2),
    Sketcher.Constraint("PointOnObject", 19, 2, -2),
    Sketcher.Constraint("Parallel", 0, 3),
    Sketcher.Constraint("Parallel", 4, 6),
    Sketcher.Constraint("Parallel", 6, 9),
    Sketcher.Constraint("Parallel", 3, 10),
    Sketcher.Constraint("Parallel", 10, 13),
    Sketcher.Constraint("Parallel", 13, 15),
    Sketcher.Constraint("Vertical", 2, 2, 6, 2),
    Sketcher.Constraint("Vertical", 0, 2, 8, 2),
    Sketcher.Constraint("Equal", 2, 7),
    Sketcher.Constraint("Equal", 0, 3),
    Sketcher.Constraint("Radius", 5, Q("2.5 mm")),
    Sketcher.Constraint("DistanceX", 5, 3, 14, 3, Q("105 mm")),
    Sketcher.Constraint("DistanceY", 0, 2, 5, 3, Q("55 mm")),
    Sketcher.Constraint("DistanceX", 1, 2, 5, 3, Q("30 mm")),
    Sketcher.Constraint("DistanceY", 3, 2, 5, 3, Q("20 mm")),
    Sketcher.Constraint("DistanceY", 5, 3, 7, 2, Q("15 mm")),
    Sketcher.Constraint("DistanceY", -1, 1, 5, 3, Q("52.5 mm")),
    Sketcher.Constraint("DistanceX", 1, 2, 1, 1, Q("6.401232 mm")),
    Sketcher.Constraint("DistanceY", 4, 2, 5, 2, Q("1.926599 mm")),
])
sketch16.setExpression("Constraints[47]", "Params.sketch16_radius")
pad2 = doc.addObject("PartDesign::Pad", "Pad001")
body.addObject(pad2)
pad2.Profile = sketch16
pad2.Type = "TwoLengths"
pad2.setExpression("Length", "Params.pad2_length")
pad2.setExpression("Length2", "Params.pad2_length2")
pad2.Reversed = True

doc.recompute()
